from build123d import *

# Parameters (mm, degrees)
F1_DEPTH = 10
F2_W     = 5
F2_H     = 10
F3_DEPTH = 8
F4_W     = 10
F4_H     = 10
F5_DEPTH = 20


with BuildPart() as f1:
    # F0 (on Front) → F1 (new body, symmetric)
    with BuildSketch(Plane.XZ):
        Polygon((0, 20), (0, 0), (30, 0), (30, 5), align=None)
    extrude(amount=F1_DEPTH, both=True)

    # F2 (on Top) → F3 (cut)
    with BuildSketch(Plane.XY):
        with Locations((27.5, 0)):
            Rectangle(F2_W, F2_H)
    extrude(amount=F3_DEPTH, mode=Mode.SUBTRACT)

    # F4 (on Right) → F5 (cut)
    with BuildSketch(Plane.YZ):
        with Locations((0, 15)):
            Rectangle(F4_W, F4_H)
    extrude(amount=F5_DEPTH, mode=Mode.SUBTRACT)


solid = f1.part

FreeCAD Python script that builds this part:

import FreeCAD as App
import Part
import Sketcher

V = App.Vector
Q = App.Units.Quantity


def add_polygon(sketch, points):
    """Adds a closed chain of lines whose ends are joined by coincident constraints."""
    first, n = sketch.GeometryCount, len(points)
    for a, b in zip(points, points[1:] + points[:1]):
        sketch.addGeometry(Part.LineSegment(App.Vector(*a, 0), App.Vector(*b, 0)), False)
    for i in range(n):
        sketch.addConstraint(Sketcher.Constraint("Coincident", first + i, 2, first + (i + 1) % n, 1))

doc = App.newDocument("Part")
body = doc.addObject("PartDesign::Body", "Body")

sketch1 = body.newObject("Sketcher::SketchObject", "Sketch")
sketch1.AttachmentSupport = (doc.getObject("XZ_Plane"), [""])
sketch1.MapMode = "FlatFace"
add_polygon(sketch1, [(0, 20), (0, 0), (30, 0), (30, 5)])
sketch1.addConstraint([
    Sketcher.Constraint("Vertical", 0),
    Sketcher.Constraint("Horizontal", 1),
    Sketcher.Constraint("Vertical", 2),
    Sketcher.Constraint("Coincident", 0, 2, -1, 1),
    Sketcher.Constraint("DistanceX", 1, 1, 1, 2, Q("30 mm")),
    Sketcher.Constraint("DistanceY", 0, 2, 0, 1, Q("20 mm")),
    Sketcher.Constraint("DistanceY", 2, 1, 2, 2, Q("5 mm")),
])
pad1 = body.newObject("PartDesign::Pad", "Pad")
pad1.Profile = sketch1
pad1.Length = 20
pad1.Midplane = True

sketch2 = body.newObject("Sketcher::SketchObject", "Sketch001")
sketch2.AttachmentSupport = (doc.getObject("XY_Plane"), [""])
sketch2.MapMode = "FlatFace"
add_polygon(sketch2, [(25, 5), (25, -5), (30, -5), (30, 5)])
sketch2.addConstraint([
    Sketcher.Constraint("Vertical", 0),
    Sketcher.Constraint("Horizontal", 1),
    Sketcher.Constraint("Vertical", 2),
    Sketcher.Constraint("Horizontal", 3),
    Sketcher.Constraint("DistanceX", 1, 1, 1, 2, Q("5 mm")),
    Sketcher.Constraint("DistanceY", 0, 2, 0, 1, Q("10 mm")),
    Sketcher.Constraint("DistanceX", -1, 1, 0, 2, Q("25 mm")),
    Sketcher.Constraint("DistanceY", 0, 2, -1, 1, Q("5 mm")),
])
pocket1 = body.newObject("PartDesign::Pocket", "Pocket")
pocket1.Profile = sketch2
pocket1.Length = 8
pocket1.Reversed = True

sketch3 = body.newObject("Sketcher::SketchObject", "Sketch002")
sketch3.AttachmentSupport = (doc.getObject("YZ_Plane"), [""])
sketch3.MapMode = "FlatFace"
add_polygon(sketch3, [(-5, 20), (-5, 10), (5, 10), (5, 20)])
sketch3.addConstraint([
    Sketcher.Constraint("Vertical", 0),
    Sketcher.Constraint("Horizontal", 1),
    Sketcher.Constraint("Vertical", 2),
    Sketcher.Constraint("Horizontal", 3),
    Sketcher.Constraint("Equal", 3, 0),
    Sketcher.Constraint("DistanceX", 1, 1, 1, 2, Q("10 mm")),
    Sketcher.Constraint("DistanceX", 0, 2, -1, 1, Q("5 mm")),
    Sketcher.Constraint("DistanceY", -1, 1, 0, 2, Q("10 mm")),
])
pocket2 = body.newObject("PartDesign::Pocket", "Pocket001")
pocket2.Profile = sketch3
pocket2.Length = 20
pocket2.Reversed = True

doc.recompute()
